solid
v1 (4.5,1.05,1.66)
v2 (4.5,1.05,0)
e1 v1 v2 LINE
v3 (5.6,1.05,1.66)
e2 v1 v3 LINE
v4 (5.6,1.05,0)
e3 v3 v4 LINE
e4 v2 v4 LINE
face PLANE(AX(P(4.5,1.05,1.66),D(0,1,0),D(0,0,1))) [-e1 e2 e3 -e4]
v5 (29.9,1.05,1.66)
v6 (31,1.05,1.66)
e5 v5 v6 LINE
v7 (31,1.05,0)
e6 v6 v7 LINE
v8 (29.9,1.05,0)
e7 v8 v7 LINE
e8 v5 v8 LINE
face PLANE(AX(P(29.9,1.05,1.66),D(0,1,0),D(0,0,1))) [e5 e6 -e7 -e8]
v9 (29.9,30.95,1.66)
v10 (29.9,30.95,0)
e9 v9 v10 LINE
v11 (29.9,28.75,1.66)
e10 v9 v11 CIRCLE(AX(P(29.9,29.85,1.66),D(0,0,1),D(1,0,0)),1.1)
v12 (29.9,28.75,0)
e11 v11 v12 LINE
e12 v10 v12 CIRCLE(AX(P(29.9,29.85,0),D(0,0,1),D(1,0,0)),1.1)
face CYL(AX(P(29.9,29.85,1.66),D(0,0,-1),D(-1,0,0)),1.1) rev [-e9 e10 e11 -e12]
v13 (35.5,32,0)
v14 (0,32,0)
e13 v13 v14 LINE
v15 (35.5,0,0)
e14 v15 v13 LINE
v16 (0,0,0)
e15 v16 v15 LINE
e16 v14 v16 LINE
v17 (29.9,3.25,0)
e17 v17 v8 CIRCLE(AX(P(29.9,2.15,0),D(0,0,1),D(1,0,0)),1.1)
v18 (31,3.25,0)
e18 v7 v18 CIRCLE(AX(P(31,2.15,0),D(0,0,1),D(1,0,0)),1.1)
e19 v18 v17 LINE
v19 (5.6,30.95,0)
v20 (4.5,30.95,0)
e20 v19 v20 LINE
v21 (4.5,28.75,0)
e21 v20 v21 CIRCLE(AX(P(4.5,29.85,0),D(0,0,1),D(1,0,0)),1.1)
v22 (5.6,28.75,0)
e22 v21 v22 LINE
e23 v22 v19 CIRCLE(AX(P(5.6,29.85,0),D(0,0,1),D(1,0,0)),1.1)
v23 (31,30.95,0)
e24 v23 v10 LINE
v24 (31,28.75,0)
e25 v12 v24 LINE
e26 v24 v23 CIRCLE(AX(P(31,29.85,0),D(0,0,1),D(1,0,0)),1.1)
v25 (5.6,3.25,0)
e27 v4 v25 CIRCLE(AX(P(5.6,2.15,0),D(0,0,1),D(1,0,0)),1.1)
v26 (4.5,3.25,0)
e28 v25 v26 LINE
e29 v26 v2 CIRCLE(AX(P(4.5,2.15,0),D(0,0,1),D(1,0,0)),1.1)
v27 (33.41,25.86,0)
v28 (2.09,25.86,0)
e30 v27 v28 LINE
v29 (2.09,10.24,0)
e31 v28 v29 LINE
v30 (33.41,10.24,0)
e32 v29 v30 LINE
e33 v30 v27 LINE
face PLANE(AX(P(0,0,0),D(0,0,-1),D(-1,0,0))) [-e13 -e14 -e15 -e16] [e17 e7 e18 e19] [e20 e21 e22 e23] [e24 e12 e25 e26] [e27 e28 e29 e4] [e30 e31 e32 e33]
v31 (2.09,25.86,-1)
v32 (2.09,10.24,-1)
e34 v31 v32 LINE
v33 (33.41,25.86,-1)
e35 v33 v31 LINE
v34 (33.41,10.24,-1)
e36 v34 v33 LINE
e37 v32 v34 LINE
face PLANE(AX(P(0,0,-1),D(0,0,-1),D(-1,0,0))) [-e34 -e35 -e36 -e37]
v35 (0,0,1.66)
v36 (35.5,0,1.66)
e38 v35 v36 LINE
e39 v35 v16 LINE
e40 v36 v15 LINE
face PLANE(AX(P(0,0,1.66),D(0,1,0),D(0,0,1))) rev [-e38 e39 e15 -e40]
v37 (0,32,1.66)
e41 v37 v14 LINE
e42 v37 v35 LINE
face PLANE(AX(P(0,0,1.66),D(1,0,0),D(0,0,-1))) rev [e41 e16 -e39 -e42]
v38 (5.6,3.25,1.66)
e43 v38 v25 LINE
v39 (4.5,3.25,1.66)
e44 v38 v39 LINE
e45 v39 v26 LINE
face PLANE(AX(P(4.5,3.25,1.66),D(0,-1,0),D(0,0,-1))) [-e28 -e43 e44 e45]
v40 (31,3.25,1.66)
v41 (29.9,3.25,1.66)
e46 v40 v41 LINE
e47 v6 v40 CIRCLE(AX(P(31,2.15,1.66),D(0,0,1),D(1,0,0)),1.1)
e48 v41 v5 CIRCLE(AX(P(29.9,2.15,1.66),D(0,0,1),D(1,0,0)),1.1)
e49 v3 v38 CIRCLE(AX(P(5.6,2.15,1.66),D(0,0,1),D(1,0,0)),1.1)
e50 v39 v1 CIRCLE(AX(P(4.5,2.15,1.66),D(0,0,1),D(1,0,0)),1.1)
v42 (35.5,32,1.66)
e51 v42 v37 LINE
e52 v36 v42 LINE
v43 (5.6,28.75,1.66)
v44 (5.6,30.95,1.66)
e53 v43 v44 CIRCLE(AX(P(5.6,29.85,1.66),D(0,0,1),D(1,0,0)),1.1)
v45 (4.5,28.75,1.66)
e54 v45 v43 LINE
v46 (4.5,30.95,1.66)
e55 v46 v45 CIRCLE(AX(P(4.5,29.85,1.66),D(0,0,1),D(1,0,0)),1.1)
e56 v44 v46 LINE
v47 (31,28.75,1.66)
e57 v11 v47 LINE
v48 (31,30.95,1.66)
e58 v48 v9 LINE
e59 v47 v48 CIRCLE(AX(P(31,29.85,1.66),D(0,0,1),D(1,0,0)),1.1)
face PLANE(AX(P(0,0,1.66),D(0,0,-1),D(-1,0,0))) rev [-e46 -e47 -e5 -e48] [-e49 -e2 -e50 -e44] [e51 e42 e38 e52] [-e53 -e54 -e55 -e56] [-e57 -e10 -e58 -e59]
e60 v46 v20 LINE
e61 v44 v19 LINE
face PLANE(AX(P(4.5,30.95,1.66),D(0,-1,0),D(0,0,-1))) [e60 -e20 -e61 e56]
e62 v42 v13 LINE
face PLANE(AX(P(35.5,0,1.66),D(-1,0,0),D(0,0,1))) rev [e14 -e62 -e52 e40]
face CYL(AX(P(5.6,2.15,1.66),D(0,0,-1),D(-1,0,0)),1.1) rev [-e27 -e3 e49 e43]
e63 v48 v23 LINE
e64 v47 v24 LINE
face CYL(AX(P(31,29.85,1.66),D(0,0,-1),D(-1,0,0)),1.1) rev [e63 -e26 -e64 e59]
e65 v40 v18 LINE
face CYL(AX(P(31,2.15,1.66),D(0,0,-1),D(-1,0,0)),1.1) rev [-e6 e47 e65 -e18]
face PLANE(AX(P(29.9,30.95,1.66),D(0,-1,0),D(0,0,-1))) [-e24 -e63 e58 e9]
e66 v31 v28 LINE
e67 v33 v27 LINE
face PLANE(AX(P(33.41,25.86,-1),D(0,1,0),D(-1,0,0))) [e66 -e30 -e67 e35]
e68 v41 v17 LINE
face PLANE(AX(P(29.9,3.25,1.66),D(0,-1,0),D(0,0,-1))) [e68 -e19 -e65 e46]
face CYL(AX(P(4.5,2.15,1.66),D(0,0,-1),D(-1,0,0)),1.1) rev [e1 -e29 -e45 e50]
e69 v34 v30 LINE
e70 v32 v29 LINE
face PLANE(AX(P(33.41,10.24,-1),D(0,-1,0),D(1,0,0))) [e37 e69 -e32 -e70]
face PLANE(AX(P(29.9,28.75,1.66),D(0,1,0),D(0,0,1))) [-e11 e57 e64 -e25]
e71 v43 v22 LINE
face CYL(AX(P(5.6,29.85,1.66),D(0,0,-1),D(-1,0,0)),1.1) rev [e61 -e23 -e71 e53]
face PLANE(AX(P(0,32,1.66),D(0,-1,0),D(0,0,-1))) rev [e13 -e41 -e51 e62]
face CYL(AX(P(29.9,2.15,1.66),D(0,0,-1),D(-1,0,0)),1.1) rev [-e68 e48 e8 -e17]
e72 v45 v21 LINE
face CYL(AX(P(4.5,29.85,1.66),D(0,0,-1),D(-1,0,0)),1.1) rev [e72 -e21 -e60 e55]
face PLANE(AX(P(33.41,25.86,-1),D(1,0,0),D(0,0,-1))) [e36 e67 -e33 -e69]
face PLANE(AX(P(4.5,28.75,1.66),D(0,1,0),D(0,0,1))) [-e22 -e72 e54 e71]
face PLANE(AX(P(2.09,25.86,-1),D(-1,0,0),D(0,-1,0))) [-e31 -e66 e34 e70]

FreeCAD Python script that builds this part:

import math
import FreeCAD as App
import Part
import Sketcher
from FreeCAD import Vector


def add_polygon(sketch, points):
    """Adds a closed chain of lines whose ends are joined by coincident constraints."""
    first, n = sketch.GeometryCount, len(points)
    for a, b in zip(points, points[1:] + points[:1]):
        sketch.addGeometry(Part.LineSegment(App.Vector(*a, 0), App.Vector(*b, 0)), False)
    for i in range(n):
        sketch.addConstraint(Sketcher.Constraint("Coincident", first + i, 2, first + (i + 1) % n, 1))

doc = App.newDocument("Part")
params = doc.addObject("Spreadsheet::Sheet", "Params")
for row, (alias, value) in enumerate([
    ("sketch1_radius", "1.1 mm"),
    ("sketch1_height", "32 mm"),
    ("sketch1_width", "35.5 mm"),
    ("sketch1_width2", "1.1 mm"),
    ("pad1_length", "1.66 mm"),
    ("sketch2_width", "31.32 mm"),
    ("sketch2_height", "15.62 mm"),
    ("pad2_length", "1 mm"),
], start=1):
    params.set(f"A{row}", alias)
    params.set(f"B{row}", "=" + value)
    params.setAlias(f"B{row}", alias)

body = doc.addObject("PartDesign::Body", "Body")

# Sketch on XY plane
sketch1 = doc.addObject("Sketcher::SketchObject", "Sketch")
body.addObject(sketch1)
sketch1.AttachmentSupport = (doc.XY_Plane, [""])
sketch1.MapMode = "FlatFace"
add_polygon(sketch1, [(0, 32), (0, 0), (35.5, 0), (35.5, 32)])  # lines 0-3
sketch1.addGeometry(Part.LineSegment(Vector(5.6, 1.05, 0), Vector(4.5, 1.05, 0)), False)  # 4
sketch1.addGeometry(Part.ArcOfCircle(Part.Circle(Vector(4.5, 2.15, 0), Vector(0, 0, 1), 1.1), math.radians(90), math.radians(270)), False)  # 5
sketch1.addGeometry(Part.LineSegment(Vector(4.5, 3.25, 0), Vector(5.6, 3.25, 0)), False)  # 6
sketch1.addGeometry(Part.ArcOfCircle(Part.Circle(Vector(5.6, 2.15, 0), Vector(0, 0, 1), 1.1), math.radians(-90), math.radians(90)), False)  # 7
sketch1.addGeometry(Part.LineSegment(Vector(31, 1.05, 0), Vector(29.9, 1.05, 0)), False)  # 8
sketch1.addGeometry(Part.ArcOfCircle(Part.Circle(Vector(29.9, 2.15, 0), Vector(0, 0, 1), 1.1), math.radians(90), math.radians(270)), False)  # 9
sketch1.addGeometry(Part.LineSegment(Vector(29.9, 3.25, 0), Vector(31, 3.25, 0)), False)  # 10
sketch1.addGeometry(Part.ArcOfCircle(Part.Circle(Vector(31, 2.15, 0), Vector(0, 0, 1), 1.1), math.radians(-90), math.radians(90)), False)  # 11
sketch1.addGeometry(Part.ArcOfCircle(Part.Circle(Vector(4.5, 29.85, 0), Vector(0, 0, 1), 1.1), math.radians(90), math.radians(270)), False)  # 12
sketch1.addGeometry(Part.LineSegment(Vector(4.5, 30.95, 0), Vector(5.6, 30.95, 0)), False)  # 13
sketch1.addGeometry(Part.ArcOfCircle(Part.Circle(Vector(5.6, 29.85, 0), Vector(0, 0, 1), 1.1), math.radians(-90), math.radians(90)), False)  # 14
sketch1.addGeometry(Part.LineSegment(Vector(5.6, 28.75, 0), Vector(4.5, 28.75, 0)), False)  # 15
sketch1.addGeometry(Part.LineSegment(Vector(31, 28.75, 0), Vector(29.9, 28.75, 0)), False)  # 16
sketch1.addGeometry(Part.ArcOfCircle(Part.Circle(Vector(29.9, 29.85, 0), Vector(0, 0, 1), 1.1), math.radians(90), math.radians(270)), False)  # 17
sketch1.addGeometry(Part.LineSegment(Vector(29.9, 30.95, 0), Vector(31, 30.95, 0)), False)  # 18
sketch1.addGeometry(Part.ArcOfCircle(Part.Circle(Vector(31, 29.85, 0), Vector(0, 0, 1), 1.1), math.radians(-90), math.radians(90)), False)  # 19
sketch1.addConstraint(Sketcher.Constraint("Tangent", 4, 2, 5, 2))
sketch1.addConstraint(Sketcher.Constraint("Tangent", 5, 1, 6, 1))
sketch1.addConstraint(Sketcher.Constraint("Tangent", 6, 2, 7, 2))
sketch1.addConstraint(Sketcher.Constraint("Tangent", 7, 1, 4, 1))
sketch1.addConstraint(Sketcher.Constraint("Tangent", 8, 2, 9, 2))
sketch1.addConstraint(Sketcher.Constraint("Tangent", 9, 1, 10, 1))
sketch1.addConstraint(Sketcher.Constraint("Tangent", 10, 2, 11, 2))
sketch1.addConstraint(Sketcher.Constraint("Tangent", 11, 1, 8, 1))
sketch1.addConstraint(Sketcher.Constraint("Tangent", 12, 1, 13, 1))
sketch1.addConstraint(Sketcher.Constraint("Tangent", 13, 2, 14, 2))
sketch1.addConstraint(Sketcher.Constraint("Tangent", 14, 1, 15, 1))
sketch1.addConstraint(Sketcher.Constraint("Tangent", 15, 2, 12, 2))
sketch1.addConstraint(Sketcher.Constraint("Tangent", 16, 2, 17, 2))
sketch1.addConstraint(Sketcher.Constraint("Tangent", 17, 1, 18, 1))
sketch1.addConstraint(Sketcher.Constraint("Tangent", 18, 2, 19, 2))
sketch1.addConstraint(Sketcher.Constraint("Tangent", 19, 1, 16, 1))
sketch1.addConstraint(Sketcher.Constraint("Vertical", 0))
sketch1.addConstraint(Sketcher.Constraint("Horizontal", 1))
sketch1.addConstraint(Sketcher.Constraint("Vertical", 2))
sketch1.addConstraint(Sketcher.Constraint("Horizontal", 3))
sketch1.addConstraint(Sketcher.Constraint("Horizontal", 4))
sketch1.addConstraint(Sketcher.Constraint("Horizontal", 6))
sketch1.addConstraint(Sketcher.Constraint("Horizontal", 8))
sketch1.addConstraint(Sketcher.Constraint("Horizontal", 10))
sketch1.addConstraint(Sketcher.Constraint("Horizontal", 13))
sketch1.addConstraint(Sketcher.Constraint("Horizontal", 15))
sketch1.addConstraint(Sketcher.Constraint("Horizontal", 16))
sketch1.addConstraint(Sketcher.Constraint("Horizontal", 18))
sketch1.addConstraint(Sketcher.Constraint("Coincident", 0, 2, -1, 1))
sketch1.addConstraint(Sketcher.Constraint("Equal", 7, 9))
sketch1.addConstraint(Sketcher.Constraint("Equal", 11, 12))
sketch1.addConstraint(Sketcher.Constraint("Equal", 14, 17))
sketch1.addConstraint(Sketcher.Constraint("Horizontal", 7, 3, 9, 3))
sketch1.addConstraint(Sketcher.Constraint("Horizontal", 14, 3, 17, 3))
sketch1.addConstraint(Sketcher.Constraint("Vertical", 5, 3, 12, 3))
sketch1.addConstraint(Sketcher.Constraint("Vertical", 7, 3, 14, 3))
sketch1.addConstraint(Sketcher.Constraint("Vertical", 9, 3, 17, 3))
sketch1.addConstraint(Sketcher.Constraint("Vertical", 11, 3, 19, 3))
sketch1.addConstraint(Sketcher.Constraint("Equal", 6, 8))
sketch1.addConstraint(Sketcher.Constraint("Radius", 5, 1.1))
sketch1.addConstraint(Sketcher.Constraint("DistanceY", 0, 2, 0, 1, 32.0))
sketch1.addConstraint(Sketcher.Constraint("DistanceX", 1, 1, 1, 2, 35.5))
sketch1.addConstraint(Sketcher.Constraint("DistanceX", 4, 2, 4, 1, 1.1))
sketch1.addConstraint(Sketcher.Constraint("DistanceX", -1, 1, 11, 3, 31.0))
sketch1.addConstraint(Sketcher.Constraint("DistanceX", -1, 1, 5, 3, 4.5))
sketch1.addConstraint(Sketcher.Constraint("DistanceY", 5, 3, 12, 3, 27.7))
sketch1.addConstraint(Sketcher.Constraint("DistanceY", -1, 1, 5, 3, 2.15))
sketch1.setExpression("Constraints[43]", "Params.sketch1_radius")
sketch1.setExpression("Constraints[44]", "Params.sketch1_height")
sketch1.setExpression("Constraints[45]", "Params.sketch1_width")
sketch1.setExpression("Constraints[46]", "Params.sketch1_width2")
pad1 = doc.addObject("PartDesign::Pad", "Pad")
body.addObject(pad1)
pad1.Profile = sketch1
pad1.setExpression("Length", "Params.pad1_length")

# Sketch on XY plane
sketch2 = doc.addObject("Sketcher::SketchObject", "Sketch001")
body.addObject(sketch2)
sketch2.AttachmentSupport = (doc.XY_Plane, [""])
sketch2.MapMode = "FlatFace"
add_polygon(sketch2, [(2.09, 25.86), (2.09, 10.24), (33.41, 10.24), (33.41, 25.86)])  # lines 0-3
sketch2.addConstraint(Sketcher.Constraint("Vertical", 0))
sketch2.addConstraint(Sketcher.Constraint("Horizontal", 1))
sketch2.addConstraint(Sketcher.Constraint("Vertical", 2))
sketch2.addConstraint(Sketcher.Constraint("Horizontal", 3))
sketch2.addConstraint(Sketcher.Constraint("DistanceX", 1, 1, 1, 2, 31.32))
sketch2.addConstraint(Sketcher.Constraint("DistanceY", 0, 2, 0, 1, 15.62))
sketch2.addConstraint(Sketcher.Constraint("DistanceX", -1, 1, 0, 2, 2.09))
sketch2.addConstraint(Sketcher.Constraint("DistanceY", -1, 1, 0, 2, 10.24))
sketch2.setExpression("Constraints[8]", "Params.sketch2_width")
sketch2.setExpression("Constraints[9]", "Params.sketch2_height")
pad2 = doc.addObject("PartDesign::Pad", "Pad001")
body.addObject(pad2)
pad2.Profile = sketch2
pad2.setExpression("Length", "Params.pad2_length")
pad2.Reversed = True

doc.recompute()
